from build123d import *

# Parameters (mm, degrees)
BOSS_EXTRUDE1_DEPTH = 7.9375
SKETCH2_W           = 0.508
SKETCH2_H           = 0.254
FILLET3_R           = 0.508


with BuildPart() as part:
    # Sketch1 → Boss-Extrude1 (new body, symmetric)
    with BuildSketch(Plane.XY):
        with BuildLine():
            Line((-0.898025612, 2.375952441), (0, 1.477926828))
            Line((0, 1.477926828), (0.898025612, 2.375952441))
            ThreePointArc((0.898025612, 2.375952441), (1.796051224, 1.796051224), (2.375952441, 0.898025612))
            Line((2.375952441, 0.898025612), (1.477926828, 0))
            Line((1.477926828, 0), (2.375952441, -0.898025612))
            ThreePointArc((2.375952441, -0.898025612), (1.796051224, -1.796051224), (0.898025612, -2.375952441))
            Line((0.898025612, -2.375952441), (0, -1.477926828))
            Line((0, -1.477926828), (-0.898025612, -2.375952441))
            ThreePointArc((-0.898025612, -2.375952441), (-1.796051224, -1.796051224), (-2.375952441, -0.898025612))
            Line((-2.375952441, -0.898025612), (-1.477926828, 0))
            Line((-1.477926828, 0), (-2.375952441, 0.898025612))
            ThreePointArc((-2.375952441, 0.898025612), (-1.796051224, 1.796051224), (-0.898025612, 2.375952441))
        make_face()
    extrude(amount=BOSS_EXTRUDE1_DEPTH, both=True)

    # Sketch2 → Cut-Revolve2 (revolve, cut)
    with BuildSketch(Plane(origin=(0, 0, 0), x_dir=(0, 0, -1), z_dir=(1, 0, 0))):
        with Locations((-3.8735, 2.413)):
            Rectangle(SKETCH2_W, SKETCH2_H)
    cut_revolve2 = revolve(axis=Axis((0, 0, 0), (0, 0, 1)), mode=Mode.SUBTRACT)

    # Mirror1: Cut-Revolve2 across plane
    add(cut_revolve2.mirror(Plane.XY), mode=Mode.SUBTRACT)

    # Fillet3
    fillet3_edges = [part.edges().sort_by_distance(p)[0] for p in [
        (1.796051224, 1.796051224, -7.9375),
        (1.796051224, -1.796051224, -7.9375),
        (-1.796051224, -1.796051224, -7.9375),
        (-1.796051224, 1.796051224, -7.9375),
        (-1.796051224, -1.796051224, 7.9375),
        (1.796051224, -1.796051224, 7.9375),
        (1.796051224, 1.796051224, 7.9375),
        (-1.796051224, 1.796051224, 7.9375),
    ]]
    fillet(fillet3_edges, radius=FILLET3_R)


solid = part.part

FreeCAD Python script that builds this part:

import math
import FreeCAD as App
import Part
import Sketcher
Q = App.Units.Quantity


def edges_at(feature, points):
    """Names of the edges that pass closest to the given points."""
    edges = feature.Shape.Edges
    near = lambda p: min(range(len(edges)), key=lambda i: edges[i].distToShape(Part.Vertex(*p))[0])
    return sorted({f"Edge{near(p) + 1}" for p in points})


def add_polygon(sketch, points):
    """Adds a closed chain of lines whose ends are joined by coincident constraints."""
    first, n = sketch.GeometryCount, len(points)
    for a, b in zip(points, points[1:] + points[:1]):
        sketch.addGeometry(Part.LineSegment(App.Vector(*a, 0), App.Vector(*b, 0)), False)
    for i in range(n):
        sketch.addConstraint(Sketcher.Constraint("Coincident", first + i, 2, first + (i + 1) % n, 1))

doc = App.newDocument("Part")
params = doc.addObject("Spreadsheet::Sheet", "Params")
for row, (alias, value) in enumerate([
    ("sketch1_radius", "0.1 in"),
    ("sketch1_length", "0.05 in"),
    ("pad1_length", "0.625 in"),
    ("sketch2_width", "0.01 in"),
    ("sketch2_height", "0.02 in"),
    ("groove_angle", "360 deg"),
    ("fillet_radius", "0.02 in"),
], start=1):
    params.set(f"A{row}", alias)
    params.set(f"B{row}", "=" + value)
    params.setAlias(f"B{row}", alias)

body = doc.addObject("PartDesign::Body", "Body")

# Sketch on XY plane
sketch1 = body.newObject("Sketcher::SketchObject", "Sketch")
sketch1.AttachmentSupport = (doc.getObject("XY_Plane"), [""])
sketch1.MapMode = "FlatFace"
sketch1.addGeometry(Part.LineSegment(App.Vector(0, 1.5, 0), App.Vector(-0.9, 2.4, 0)), False)
sketch1.addGeometry(Part.ArcOfCircle(Part.Circle(App.Vector(0, 0, 0), App.Vector(0, 0, 1), 2.5), math.radians(111), math.radians(159)), False)
sketch1.addGeometry(Part.LineSegment(App.Vector(-2.4, 0.9, 0), App.Vector(-1.5, 0, 0)), False)
sketch1.addGeometry(Part.LineSegment(App.Vector(-1.5, 0, 0), App.Vector(-2.4, -0.9, 0)), False)
sketch1.addGeometry(Part.ArcOfCircle(Part.Circle(App.Vector(0, 0, 0), App.Vector(0, 0, 1), 2.5), math.radians(-159), math.radians(-111)), False)
sketch1.addGeometry(Part.LineSegment(App.Vector(-0.9, -2.4, 0), App.Vector(0, -1.5, 0)), False)
sketch1.addGeometry(Part.LineSegment(App.Vector(0, -1.5, 0), App.Vector(0.9, -2.4, 0)), False)
sketch1.addGeometry(Part.ArcOfCircle(Part.Circle(App.Vector(0, 0, 0), App.Vector(0, 0, 1), 2.5), math.radians(-69), math.radians(-21)), False)
sketch1.addGeometry(Part.LineSegment(App.Vector(2.4, -0.9, 0), App.Vector(1.5, 0, 0)), False)
sketch1.addGeometry(Part.LineSegment(App.Vector(1.5, 0, 0), App.Vector(2.4, 0.9, 0)), False)
sketch1.addGeometry(Part.ArcOfCircle(Part.Circle(App.Vector(0, 0, 0), App.Vector(0, 0, 1), 2.5), math.radians(21), math.radians(69)), False)
sketch1.addGeometry(Part.LineSegment(App.Vector(0.9, 2.4, 0), App.Vector(0, 1.5, 0)), False)
sketch1.addConstraint(Sketcher.Constraint("Coincident", 0, 2, 1, 1))
sketch1.addConstraint(Sketcher.Constraint("Coincident", 1, 2, 2, 1))
sketch1.addConstraint(Sketcher.Constraint("Coincident", 2, 2, 3, 1))
sketch1.addConstraint(Sketcher.Constraint("Coincident", 3, 2, 4, 1))
sketch1.addConstraint(Sketcher.Constraint("Coincident", 4, 2, 5, 1))
sketch1.addConstraint(Sketcher.Constraint("Coincident", 5, 2, 6, 1))
sketch1.addConstraint(Sketcher.Constraint("Coincident", 6, 2, 7, 1))
sketch1.addConstraint(Sketcher.Constraint("Coincident", 7, 2, 8, 1))
sketch1.addConstraint(Sketcher.Constraint("Coincident", 8, 2, 9, 1))
sketch1.addConstraint(Sketcher.Constraint("Coincident", 9, 2, 10, 1))
sketch1.addConstraint(Sketcher.Constraint("Coincident", 10, 2, 11, 1))
sketch1.addConstraint(Sketcher.Constraint("Coincident", 11, 2, 0, 1))
sketch1.addConstraint(Sketcher.Constraint("Coincident", 1, 3, -1, 1))
sketch1.addConstraint(Sketcher.Constraint("Coincident", 4, 3, -1, 1))
sketch1.addConstraint(Sketcher.Constraint("Coincident", 7, 3, -1, 1))
sketch1.addConstraint(Sketcher.Constraint("Coincident", 10, 3, -1, 1))
sketch1.addConstraint(Sketcher.Constraint("Equal", 1, 4))
sketch1.addConstraint(Sketcher.Constraint("Equal", 4, 7))
sketch1.addConstraint(Sketcher.Constraint("Equal", 7, 10))
sketch1.addConstraint(Sketcher.Constraint("Symmetric", 2, 2, 8, 2, -1, 1))
sketch1.addConstraint(Sketcher.Constraint("Symmetric", 5, 2, 11, 2, -1, 1))
sketch1.addConstraint(Sketcher.Constraint("PointOnObject", 2, 2, -1))
sketch1.addConstraint(Sketcher.Constraint("PointOnObject", 5, 2, -2))
sketch1.addConstraint(Sketcher.Constraint("Parallel", 0, 2))
sketch1.addConstraint(Sketcher.Constraint("Perpendicular", 2, 3))
sketch1.addConstraint(Sketcher.Constraint("Parallel", 3, 5))
sketch1.addConstraint(Sketcher.Constraint("Perpendicular", 5, 6))
sketch1.addConstraint(Sketcher.Constraint("Parallel", 6, 8))
sketch1.addConstraint(Sketcher.Constraint("Perpendicular", 8, 9))
sketch1.addConstraint(Sketcher.Constraint("Parallel", 9, 11))
sketch1.addConstraint(Sketcher.Constraint("Horizontal", 4, 2, 6, 2))
sketch1.addConstraint(Sketcher.Constraint("Equal", 0, 2))
sketch1.addConstraint(Sketcher.Constraint("Radius", 1, Q("0.1 in")))
sketch1.addConstraint(Sketcher.Constraint("Distance", 0, Q("0.05 in")))
sketch1.setExpression("Constraints[32]", "Params.sketch1_radius")
sketch1.setExpression("Constraints[33]", "Params.sketch1_length")
pad1 = body.newObject("PartDesign::Pad", "Pad")
pad1.Profile = sketch1
pad1.setExpression("Length", "Params.pad1_length")
pad1.Midplane = True

# Sketch on YZ plane
sketch2 = body.newObject("Sketcher::SketchObject", "Sketch001")
sketch2.AttachmentSupport = (doc.getObject("YZ_Plane"), [""])
sketch2.MapMode = "FlatFace"
add_polygon(sketch2, [(2.54, 4.13), (2.29, 4.13), (2.29, 3.62), (2.54, 3.62)])  # lines 0-3
sketch2.addConstraint(Sketcher.Constraint("Horizontal", 0))
sketch2.addConstraint(Sketcher.Constraint("Vertical", 1))
sketch2.addConstraint(Sketcher.Constraint("Horizontal", 2))
sketch2.addConstraint(Sketcher.Constraint("Vertical", 3))
sketch2.addConstraint(Sketcher.Constraint("DistanceX", 0, 2, 0, 1, Q("0.01 in")))
sketch2.addConstraint(Sketcher.Constraint("DistanceY", 1, 2, 1, 1, Q("0.02 in")))
sketch2.addConstraint(Sketcher.Constraint("DistanceX", -1, 1, 2, 2, Q("0.1 in")))
sketch2.addConstraint(Sketcher.Constraint("DistanceY", -1, 1, 0, 2, Q("0.1625 in")))
sketch2.setExpression("Constraints[8]", "Params.sketch2_width")
sketch2.setExpression("Constraints[9]", "Params.sketch2_height")
groove = body.newObject("PartDesign::Groove", "Groove")
groove.Profile = sketch2
groove.ReferenceAxis = (sketch2, ["V_Axis"])
groove.setExpression("Angle", "Params.groove_angle")
doc.recompute()

mirrored = body.newObject("PartDesign::Mirrored", "Mirrored")
mirrored.Originals = [groove]
mirrored.MirrorPlane = (doc.getObject("XY_Plane"), [""])
body.Tip = mirrored
doc.recompute()

fillet = body.newObject("PartDesign::Fillet", "Fillet")
fillet.Base = (mirrored, edges_at(mirrored, [
    (1.796, 1.796, -7.938),
    (1.796, -1.796, -7.938),
    (-1.796, -1.796, -7.938),
    (-1.796, 1.796, -7.938),
    (-1.796, -1.796, 7.938),
    (1.796, -1.796, 7.938),
    (1.796, 1.796, 7.938),
    (-1.796, 1.796, 7.938),
]))
fillet.setExpression("Radius", "Params.fillet_radius")

doc.recompute()
